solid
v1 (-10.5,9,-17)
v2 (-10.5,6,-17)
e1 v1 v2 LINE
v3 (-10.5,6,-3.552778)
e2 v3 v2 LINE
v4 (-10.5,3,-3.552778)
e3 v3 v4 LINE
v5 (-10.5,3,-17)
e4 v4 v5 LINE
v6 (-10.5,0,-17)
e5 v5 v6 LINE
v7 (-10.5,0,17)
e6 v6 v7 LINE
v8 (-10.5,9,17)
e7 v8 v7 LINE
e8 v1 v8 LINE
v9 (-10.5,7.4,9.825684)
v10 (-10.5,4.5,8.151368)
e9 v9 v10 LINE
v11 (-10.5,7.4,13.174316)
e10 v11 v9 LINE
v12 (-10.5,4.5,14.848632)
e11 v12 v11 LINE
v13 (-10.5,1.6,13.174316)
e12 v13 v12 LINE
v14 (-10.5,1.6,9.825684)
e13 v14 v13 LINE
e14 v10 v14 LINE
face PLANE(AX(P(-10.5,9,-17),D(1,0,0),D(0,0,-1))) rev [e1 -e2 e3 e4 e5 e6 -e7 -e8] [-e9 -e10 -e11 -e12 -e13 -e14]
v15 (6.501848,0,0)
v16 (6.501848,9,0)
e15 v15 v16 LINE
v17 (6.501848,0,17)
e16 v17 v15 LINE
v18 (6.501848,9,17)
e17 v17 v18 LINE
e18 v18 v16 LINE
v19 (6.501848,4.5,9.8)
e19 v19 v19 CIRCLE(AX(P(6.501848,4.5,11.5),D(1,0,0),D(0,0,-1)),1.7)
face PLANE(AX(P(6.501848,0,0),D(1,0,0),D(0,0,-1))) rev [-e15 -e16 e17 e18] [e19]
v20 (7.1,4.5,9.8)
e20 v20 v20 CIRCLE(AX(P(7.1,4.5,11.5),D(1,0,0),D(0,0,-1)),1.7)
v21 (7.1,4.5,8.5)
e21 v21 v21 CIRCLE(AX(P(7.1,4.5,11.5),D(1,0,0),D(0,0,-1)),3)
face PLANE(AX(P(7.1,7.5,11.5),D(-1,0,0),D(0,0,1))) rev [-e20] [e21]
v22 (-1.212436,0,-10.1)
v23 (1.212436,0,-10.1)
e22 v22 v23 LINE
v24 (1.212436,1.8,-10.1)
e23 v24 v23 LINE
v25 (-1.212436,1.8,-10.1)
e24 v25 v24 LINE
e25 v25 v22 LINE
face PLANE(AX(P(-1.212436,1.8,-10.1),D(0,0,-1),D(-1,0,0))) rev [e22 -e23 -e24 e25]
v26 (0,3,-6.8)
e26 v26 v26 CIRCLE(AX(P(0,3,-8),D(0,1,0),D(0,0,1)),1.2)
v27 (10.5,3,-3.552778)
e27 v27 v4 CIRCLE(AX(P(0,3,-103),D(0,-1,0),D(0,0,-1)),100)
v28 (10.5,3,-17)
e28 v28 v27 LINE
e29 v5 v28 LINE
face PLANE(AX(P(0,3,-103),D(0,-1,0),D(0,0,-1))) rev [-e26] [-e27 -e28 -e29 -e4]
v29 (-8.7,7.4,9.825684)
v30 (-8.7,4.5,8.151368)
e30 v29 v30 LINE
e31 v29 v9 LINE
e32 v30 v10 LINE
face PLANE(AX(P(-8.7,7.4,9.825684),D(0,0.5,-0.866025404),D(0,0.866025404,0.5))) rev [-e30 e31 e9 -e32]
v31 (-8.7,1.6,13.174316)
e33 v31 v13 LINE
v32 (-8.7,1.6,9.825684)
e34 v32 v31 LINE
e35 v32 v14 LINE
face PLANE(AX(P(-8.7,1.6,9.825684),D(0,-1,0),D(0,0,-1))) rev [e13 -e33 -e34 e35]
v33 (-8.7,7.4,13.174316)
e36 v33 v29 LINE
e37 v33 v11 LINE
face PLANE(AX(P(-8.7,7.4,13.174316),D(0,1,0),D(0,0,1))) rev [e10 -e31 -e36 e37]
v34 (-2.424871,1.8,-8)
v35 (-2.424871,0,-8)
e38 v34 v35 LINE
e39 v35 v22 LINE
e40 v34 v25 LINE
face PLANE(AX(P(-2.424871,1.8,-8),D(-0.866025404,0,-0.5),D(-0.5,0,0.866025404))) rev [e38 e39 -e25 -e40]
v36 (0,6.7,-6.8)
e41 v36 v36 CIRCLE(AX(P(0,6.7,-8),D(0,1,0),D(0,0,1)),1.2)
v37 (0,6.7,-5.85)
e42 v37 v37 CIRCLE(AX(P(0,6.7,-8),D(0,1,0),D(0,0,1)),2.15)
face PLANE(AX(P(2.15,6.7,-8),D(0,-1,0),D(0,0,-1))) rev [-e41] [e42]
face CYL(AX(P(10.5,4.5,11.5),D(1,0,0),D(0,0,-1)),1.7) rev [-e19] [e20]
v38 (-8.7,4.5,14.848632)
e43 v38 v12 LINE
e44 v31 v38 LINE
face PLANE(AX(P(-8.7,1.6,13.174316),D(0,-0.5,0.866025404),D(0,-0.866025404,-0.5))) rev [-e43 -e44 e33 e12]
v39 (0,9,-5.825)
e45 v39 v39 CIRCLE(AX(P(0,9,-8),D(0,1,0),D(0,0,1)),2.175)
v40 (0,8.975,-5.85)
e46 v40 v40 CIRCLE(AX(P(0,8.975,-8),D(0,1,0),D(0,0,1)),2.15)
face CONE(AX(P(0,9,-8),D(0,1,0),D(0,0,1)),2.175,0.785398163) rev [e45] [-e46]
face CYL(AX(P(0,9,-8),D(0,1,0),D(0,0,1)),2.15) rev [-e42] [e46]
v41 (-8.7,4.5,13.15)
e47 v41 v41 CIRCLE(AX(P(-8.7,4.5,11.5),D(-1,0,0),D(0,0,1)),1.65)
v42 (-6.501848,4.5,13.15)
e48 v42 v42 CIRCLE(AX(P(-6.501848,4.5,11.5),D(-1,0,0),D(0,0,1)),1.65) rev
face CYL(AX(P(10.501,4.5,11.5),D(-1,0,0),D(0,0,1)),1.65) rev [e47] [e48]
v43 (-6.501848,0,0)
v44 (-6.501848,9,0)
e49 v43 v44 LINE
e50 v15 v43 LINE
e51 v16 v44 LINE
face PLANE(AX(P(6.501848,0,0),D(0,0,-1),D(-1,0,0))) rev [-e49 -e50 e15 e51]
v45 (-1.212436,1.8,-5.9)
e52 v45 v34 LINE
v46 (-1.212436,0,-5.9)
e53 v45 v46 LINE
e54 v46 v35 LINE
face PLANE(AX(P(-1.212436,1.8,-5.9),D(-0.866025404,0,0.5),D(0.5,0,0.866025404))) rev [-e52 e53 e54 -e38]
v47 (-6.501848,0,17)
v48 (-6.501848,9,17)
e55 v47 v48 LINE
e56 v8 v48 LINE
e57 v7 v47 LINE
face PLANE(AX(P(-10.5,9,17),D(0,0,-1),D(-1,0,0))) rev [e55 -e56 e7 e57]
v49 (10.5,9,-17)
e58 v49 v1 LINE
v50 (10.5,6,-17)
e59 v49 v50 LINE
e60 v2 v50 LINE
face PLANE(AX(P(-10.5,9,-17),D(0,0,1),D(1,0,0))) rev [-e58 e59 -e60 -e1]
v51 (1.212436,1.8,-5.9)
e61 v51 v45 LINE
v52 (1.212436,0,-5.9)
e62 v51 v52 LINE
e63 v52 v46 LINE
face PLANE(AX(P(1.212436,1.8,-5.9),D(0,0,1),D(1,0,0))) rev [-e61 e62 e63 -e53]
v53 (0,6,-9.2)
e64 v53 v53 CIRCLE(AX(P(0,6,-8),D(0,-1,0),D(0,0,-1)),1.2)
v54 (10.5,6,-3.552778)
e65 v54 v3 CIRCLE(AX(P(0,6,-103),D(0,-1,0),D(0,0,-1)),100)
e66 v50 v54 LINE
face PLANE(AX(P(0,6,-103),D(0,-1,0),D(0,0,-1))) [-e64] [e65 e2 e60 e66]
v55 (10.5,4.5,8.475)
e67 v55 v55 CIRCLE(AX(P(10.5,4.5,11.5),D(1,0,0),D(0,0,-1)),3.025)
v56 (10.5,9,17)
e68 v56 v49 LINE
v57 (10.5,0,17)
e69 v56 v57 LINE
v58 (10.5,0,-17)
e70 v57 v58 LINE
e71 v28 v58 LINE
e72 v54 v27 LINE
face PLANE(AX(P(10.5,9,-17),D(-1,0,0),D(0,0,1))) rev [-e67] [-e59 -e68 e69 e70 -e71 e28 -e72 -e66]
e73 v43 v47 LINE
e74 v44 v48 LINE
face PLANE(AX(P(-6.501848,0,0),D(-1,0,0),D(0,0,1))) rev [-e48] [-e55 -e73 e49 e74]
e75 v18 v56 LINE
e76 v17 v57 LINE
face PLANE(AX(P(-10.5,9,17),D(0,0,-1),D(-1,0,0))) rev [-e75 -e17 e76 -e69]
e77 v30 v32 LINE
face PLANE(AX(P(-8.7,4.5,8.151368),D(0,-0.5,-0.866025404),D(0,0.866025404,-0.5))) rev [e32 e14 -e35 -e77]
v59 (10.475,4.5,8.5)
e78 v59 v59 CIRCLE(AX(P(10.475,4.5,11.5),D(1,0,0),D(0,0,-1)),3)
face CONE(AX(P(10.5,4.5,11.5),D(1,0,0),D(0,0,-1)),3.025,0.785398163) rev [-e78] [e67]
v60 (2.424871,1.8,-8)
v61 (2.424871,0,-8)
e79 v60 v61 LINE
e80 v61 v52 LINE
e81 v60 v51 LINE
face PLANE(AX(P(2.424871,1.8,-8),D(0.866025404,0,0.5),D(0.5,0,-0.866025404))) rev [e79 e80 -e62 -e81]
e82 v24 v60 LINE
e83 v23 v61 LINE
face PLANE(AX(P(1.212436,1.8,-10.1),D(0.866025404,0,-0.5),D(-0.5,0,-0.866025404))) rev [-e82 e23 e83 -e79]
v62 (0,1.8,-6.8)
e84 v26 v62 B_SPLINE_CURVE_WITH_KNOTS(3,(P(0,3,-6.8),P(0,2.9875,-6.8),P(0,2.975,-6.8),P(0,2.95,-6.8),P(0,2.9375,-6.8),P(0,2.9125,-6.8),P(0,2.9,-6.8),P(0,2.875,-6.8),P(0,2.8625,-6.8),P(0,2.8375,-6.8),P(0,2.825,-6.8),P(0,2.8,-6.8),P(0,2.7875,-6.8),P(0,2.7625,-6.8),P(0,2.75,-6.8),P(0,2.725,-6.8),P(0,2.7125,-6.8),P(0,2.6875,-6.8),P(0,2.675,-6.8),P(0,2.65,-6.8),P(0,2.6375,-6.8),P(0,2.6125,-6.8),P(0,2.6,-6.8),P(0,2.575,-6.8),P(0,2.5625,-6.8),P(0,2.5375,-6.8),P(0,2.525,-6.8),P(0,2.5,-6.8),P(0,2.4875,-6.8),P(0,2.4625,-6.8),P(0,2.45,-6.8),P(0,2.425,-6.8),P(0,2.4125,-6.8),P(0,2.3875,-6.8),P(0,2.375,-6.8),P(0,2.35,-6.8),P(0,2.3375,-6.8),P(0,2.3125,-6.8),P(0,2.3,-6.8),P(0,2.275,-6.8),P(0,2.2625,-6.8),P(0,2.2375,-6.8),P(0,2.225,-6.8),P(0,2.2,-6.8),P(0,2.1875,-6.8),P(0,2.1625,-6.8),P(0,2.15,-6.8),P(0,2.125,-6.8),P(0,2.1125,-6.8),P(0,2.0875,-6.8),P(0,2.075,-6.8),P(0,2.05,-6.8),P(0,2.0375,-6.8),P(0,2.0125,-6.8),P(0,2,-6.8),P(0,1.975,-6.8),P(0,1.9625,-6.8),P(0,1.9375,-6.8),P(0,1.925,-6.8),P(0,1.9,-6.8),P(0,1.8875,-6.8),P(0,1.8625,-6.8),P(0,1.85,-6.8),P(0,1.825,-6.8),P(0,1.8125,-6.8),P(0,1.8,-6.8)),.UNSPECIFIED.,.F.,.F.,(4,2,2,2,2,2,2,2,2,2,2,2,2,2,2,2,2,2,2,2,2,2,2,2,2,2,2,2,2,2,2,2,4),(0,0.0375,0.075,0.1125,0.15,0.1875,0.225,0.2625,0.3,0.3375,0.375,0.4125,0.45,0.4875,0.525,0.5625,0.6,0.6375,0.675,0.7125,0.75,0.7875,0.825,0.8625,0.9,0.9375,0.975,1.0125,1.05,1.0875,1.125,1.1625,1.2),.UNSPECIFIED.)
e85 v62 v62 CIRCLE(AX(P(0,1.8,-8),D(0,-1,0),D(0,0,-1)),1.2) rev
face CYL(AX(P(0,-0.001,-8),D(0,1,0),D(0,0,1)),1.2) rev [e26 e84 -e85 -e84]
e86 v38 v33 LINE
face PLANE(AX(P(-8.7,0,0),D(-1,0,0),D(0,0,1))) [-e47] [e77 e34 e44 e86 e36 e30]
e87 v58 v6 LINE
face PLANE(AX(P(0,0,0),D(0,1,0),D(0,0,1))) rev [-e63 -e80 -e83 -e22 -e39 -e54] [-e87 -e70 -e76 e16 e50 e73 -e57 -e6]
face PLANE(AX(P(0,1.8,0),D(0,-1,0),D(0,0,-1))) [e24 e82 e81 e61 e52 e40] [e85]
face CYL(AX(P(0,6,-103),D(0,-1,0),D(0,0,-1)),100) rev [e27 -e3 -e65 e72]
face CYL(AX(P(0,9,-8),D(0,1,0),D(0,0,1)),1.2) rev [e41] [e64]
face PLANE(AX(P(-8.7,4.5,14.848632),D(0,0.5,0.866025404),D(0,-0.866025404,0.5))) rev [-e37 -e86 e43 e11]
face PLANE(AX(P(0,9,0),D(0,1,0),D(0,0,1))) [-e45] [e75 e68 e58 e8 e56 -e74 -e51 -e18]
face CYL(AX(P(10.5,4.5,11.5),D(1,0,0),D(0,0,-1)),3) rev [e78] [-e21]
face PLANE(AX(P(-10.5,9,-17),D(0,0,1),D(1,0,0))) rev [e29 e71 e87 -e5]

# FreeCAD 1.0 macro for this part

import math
import FreeCAD as App
import Part
import Sketcher
Q = App.Units.Quantity


def add_polygon(sketch, points):
    """Adds a closed chain of lines whose ends are joined by coincident constraints."""
    first, n = sketch.GeometryCount, len(points)
    for a, b in zip(points, points[1:] + points[:1]):
        sketch.addGeometry(Part.LineSegment(App.Vector(*a, 0), App.Vector(*b, 0)), False)
    for i in range(n):
        sketch.addConstraint(Sketcher.Constraint("Coincident", first + i, 2, first + (i + 1) % n, 1))

doc = App.newDocument("Part")
body = doc.addObject("PartDesign::Body", "Body")

# Sketch on XZ plane
sketch1 = doc.addObject("Sketcher::SketchObject", "Sketch")
body.addObject(sketch1)
sketch1.AttachmentSupport = (doc.XZ_Plane, [""])
sketch1.MapMode = "FlatFace"
add_polygon(sketch1, [(-10, -17), (-10, 17), (10, 17), (10, -17)])  # lines 0-3
sketch1.addConstraint([
    Sketcher.Constraint("Vertical", 0),
    Sketcher.Constraint("Horizontal", 1),
    Sketcher.Constraint("Vertical", 2),
    Sketcher.Constraint("Horizontal", 3),
    Sketcher.Constraint("Symmetric", 0, 2, 2, 2, -1, 1),
    Sketcher.Constraint("DistanceX", 1, 1, 1, 2, 21.0),
    Sketcher.Constraint("DistanceY", 0, 1, 0, 2, 34.0),
])
pad1 = doc.addObject("PartDesign::Pad", "Pad")
body.addObject(pad1)
pad1.Profile = sketch1
pad1.Length = 9
pad1.Reversed = True

# Sketch on XZ plane
sketch2 = doc.addObject("Sketcher::SketchObject", "Sketch001")
body.addObject(sketch2)
sketch2.AttachmentSupport = (doc.XZ_Plane, [""])
sketch2.MapMode = "FlatFace"
sketch2.AttachmentOffset = App.Placement(App.Vector(0, 0, -9), App.Rotation())
add_polygon(sketch2, [(-7, 0), (-7, 17), (7, 17), (7, 0)])  # lines 0-3
sketch2.addConstraint([
    Sketcher.Constraint("Vertical", 0),
    Sketcher.Constraint("Horizontal", 1),
    Sketcher.Constraint("Vertical", 2),
    Sketcher.Constraint("Horizontal", 3),
    Sketcher.Constraint("Symmetric", 2, 2, 3, 2, -1, 1),
    Sketcher.Constraint("DistanceY", 0, 1, 0, 2, 17.0),
    Sketcher.Constraint("DistanceX", 1, 1, 1, 2, 13.003696),
])
pocket1 = doc.addObject("PartDesign::Pocket", "Pocket")
body.addObject(pocket1)
pocket1.Profile = sketch2
pocket1.Type = "ThroughAll"
pocket1.Reversed = True

# Sketch on XZ plane
sketch3 = doc.addObject("Sketcher::SketchObject", "Sketch002")
body.addObject(sketch3)
sketch3.AttachmentSupport = (doc.XZ_Plane, [""])
sketch3.MapMode = "FlatFace"
sketch3.AttachmentOffset = App.Placement(App.Vector(0, 0, -4.5), App.Rotation())
add_polygon(sketch3, [(6.502, 11.5), (10.5, 11.5), (10.5, 8.475), (10.475, 8.5), (7.1, 8.5), (7.1, 9.8), (6.502, 9.8)])  # lines 0-6
sketch3.addGeometry(Part.LineSegment(App.Vector(10.5, 11.5, 0), App.Vector(6.502, 11.5, 0)), True)  # axis
sketch3.addConstraint([
    Sketcher.Constraint("Horizontal", 0),
    Sketcher.Constraint("Vertical", 1),
    Sketcher.Constraint("Horizontal", 3),
    Sketcher.Constraint("Vertical", 4),
    Sketcher.Constraint("Horizontal", 5),
    Sketcher.Constraint("Vertical", 6),
    Sketcher.Constraint("Horizontal", 7),
    Sketcher.Constraint("Coincident", 7, 1, 0, 2),
    Sketcher.Constraint("Vertical", 5, 2, 7, 2),
    Sketcher.Constraint("Angle", 2, Q("135 deg")),
    Sketcher.Constraint("DistanceY", 4, 1, 4, 2, 1.3),
    Sketcher.Constraint("DistanceY", 6, 1, 6, 2, 1.7),
    Sketcher.Constraint("DistanceX", -1, 1, 0, 2, 10.5),
    Sketcher.Constraint("DistanceY", -1, 1, 0, 2, 11.5),
    Sketcher.Constraint("DistanceX", -1, 1, 3, 2, 7.1),
    Sketcher.Constraint("DistanceX", 3, 2, 3, 1, 3.375),
    Sketcher.Constraint("DistanceX", 0, 1, 0, 2, 3.998152),
])
groove = doc.addObject("PartDesign::Groove", "Groove")
body.addObject(groove)
groove.Profile = sketch3
groove.ReferenceAxis = (sketch3, ["Axis0"])
groove.Angle = 360

# Sketch on YZ plane
sketch4 = doc.addObject("Sketcher::SketchObject", "Sketch003")
body.addObject(sketch4)
sketch4.AttachmentSupport = (doc.YZ_Plane, [""])
sketch4.MapMode = "FlatFace"
sketch4.AttachmentOffset = App.Placement(App.Vector(0, 0, -10.5), App.Rotation())
add_polygon(sketch4, [(1.6, 13.2), (4.5, 14.8), (7.4, 13.2), (7.4, 9.8), (4.5, 8.2), (1.6, 9.8)])  # lines 0-5
sketch4.addConstraint([
    Sketcher.Constraint("Vertical", 2),
    Sketcher.Constraint("Vertical", 5),
    Sketcher.Constraint("Parallel", 0, 3),
    Sketcher.Constraint("Parallel", 1, 4),
    Sketcher.Constraint("Horizontal", 2, 2, 4, 2),
    Sketcher.Constraint("Horizontal", 1, 2, 5, 2),
    Sketcher.Constraint("Vertical", 0, 2, 3, 2),
    Sketcher.Constraint("Angle", 0, Q("30 deg")),
    Sketcher.Constraint("DistanceX", -1, 1, 0, 2, 4.5),
    Sketcher.Constraint("DistanceX", -1, 1, 1, 2, 7.4),
    Sketcher.Constraint("DistanceY", 2, 2, 2, 1, 3.348632),
    Sketcher.Constraint("DistanceY", -1, 1, 0, 2, 14.848632),
])
pocket2 = doc.addObject("PartDesign::Pocket", "Pocket001")
body.addObject(pocket2)
pocket2.Profile = sketch4
pocket2.Length = 1.8
pocket2.Reversed = True

# Sketch on YZ plane
sketch5 = doc.addObject("Sketcher::SketchObject", "Sketch004")
body.addObject(sketch5)
sketch5.AttachmentSupport = (doc.YZ_Plane, [""])
sketch5.MapMode = "FlatFace"
sketch5.AttachmentOffset = App.Placement(App.Vector(0, 0, -8.7), App.Rotation())
sketch5.addGeometry(Part.Circle(App.Vector(4.5, 11.5, 0), App.Vector(0, 0, 1), 1.6), False)
sketch5.addConstraint([
    Sketcher.Constraint("Diameter", 0, 3.3),
    Sketcher.Constraint("DistanceX", -1, 1, 0, 3, 4.5),
    Sketcher.Constraint("DistanceY", -1, 1, 0, 3, 11.5),
])
pocket3 = doc.addObject("PartDesign::Pocket", "Pocket002")
body.addObject(pocket3)
pocket3.Profile = sketch5
pocket3.Type = "UpToFirst"
pocket3.Reversed = True

# Sketch on XZ plane
sketch6 = doc.addObject("Sketcher::SketchObject", "Sketch005")
body.addObject(sketch6)
sketch6.AttachmentSupport = (doc.XZ_Plane, [""])
sketch6.MapMode = "FlatFace"
sketch6.AttachmentOffset = App.Placement(App.Vector(0, 0, -3), App.Rotation())
sketch6.addGeometry([
    Part.LineSegment(App.Vector(-10, -17, 0), App.Vector(10, -17, 0)),
    Part.LineSegment(App.Vector(10, -17, 0), App.Vector(10, -4, 0)),
    Part.ArcOfCircle(Part.Circle(App.Vector(0, -103, 0), App.Vector(0, 0, 1), 100), math.radians(83.97), math.radians(96.03)),
    Part.LineSegment(App.Vector(-10, -4, 0), App.Vector(-10, -17, 0)),
], False)
sketch6.addConstraint([
    Sketcher.Constraint("Coincident", 0, 2, 1, 1),
    Sketcher.Constraint("Coincident", 1, 2, 2, 1),
    Sketcher.Constraint("Coincident", 2, 2, 3, 1),
    Sketcher.Constraint("Coincident", 3, 2, 0, 1),
    Sketcher.Constraint("Horizontal", 0),
    Sketcher.Constraint("Vertical", 1),
    Sketcher.Constraint("Vertical", 3),
    Sketcher.Constraint("Symmetric", 1, 2, 2, 2, -2),
    Sketcher.Constraint("Radius", 2, 100.0),
    Sketcher.Constraint("DistanceX", 0, 1, 0, 2, 21.0),
    Sketcher.Constraint("DistanceY", 2, 3, -1, 1, 103.0),
    Sketcher.Constraint("DistanceY", 0, 2, -1, 1, 17.0),
])
pocket4 = doc.addObject("PartDesign::Pocket", "Pocket003")
body.addObject(pocket4)
pocket4.Profile = sketch6
pocket4.Length = 3

# Sketch on YZ plane
sketch7 = doc.addObject("Sketcher::SketchObject", "Sketch006")
body.addObject(sketch7)
sketch7.AttachmentSupport = (doc.YZ_Plane, [""])
sketch7.MapMode = "FlatFace"
add_polygon(sketch7, [(6, -8), (9, -8), (9, -5.825), (8.975, -5.85), (6.7, -5.85), (6.7, -6.8), (6, -6.8)])  # lines 0-6
sketch7.addGeometry(Part.LineSegment(App.Vector(9, -8, 0), App.Vector(6, -8, 0)), True)  # axis
sketch7.addConstraint([
    Sketcher.Constraint("Horizontal", 0),
    Sketcher.Constraint("Vertical", 1),
    Sketcher.Constraint("Horizontal", 3),
    Sketcher.Constraint("Vertical", 4),
    Sketcher.Constraint("Horizontal", 5),
    Sketcher.Constraint("Vertical", 6),
    Sketcher.Constraint("Horizontal", 7),
    Sketcher.Constraint("Coincident", 7, 1, 0, 2),
    Sketcher.Constraint("Vertical", 5, 2, 7, 2),
    Sketcher.Constraint("DistanceX", 0, 1, 0, 2, 3.0),
    Sketcher.Constraint("Angle", 2, Q("-135 deg")),
    Sketcher.Constraint("DistanceX", 5, 2, 5, 1, 0.7),
    Sketcher.Constraint("DistanceY", 6, 2, 6, 1, 1.2),
    Sketcher.Constraint("DistanceX", -1, 1, 0, 2, 9.0),
    Sketcher.Constraint("DistanceY", 0, 2, -1, 1, 8.0),
    Sketcher.Constraint("DistanceY", 4, 2, 4, 1, 0.95),
    Sketcher.Constraint("DistanceX", 3, 2, 3, 1, 2.275),
])
groove2 = doc.addObject("PartDesign::Groove", "Groove001")
body.addObject(groove2)
groove2.Profile = sketch7
groove2.ReferenceAxis = (sketch7, ["Axis0"])
groove2.Angle = 360

# Sketch on XZ plane
sketch8 = doc.addObject("Sketcher::SketchObject", "Sketch007")
body.addObject(sketch8)
sketch8.AttachmentSupport = (doc.XZ_Plane, [""])
sketch8.MapMode = "FlatFace"
sketch8.AttachmentOffset = App.Placement(App.Vector(0, 0, -3), App.Rotation())
sketch8.addGeometry(Part.Circle(App.Vector(0, -8, 0), App.Vector(0, 0, 1), 1.2), False)
sketch8.addConstraint([
    Sketcher.Constraint("PointOnObject", 0, 3, -2),
    Sketcher.Constraint("Diameter", 0, 2.4),
    Sketcher.Constraint("DistanceY", 0, 3, -1, 1, 8.0),
])
pocket5 = doc.addObject("PartDesign::Pocket", "Pocket004")
body.addObject(pocket5)
pocket5.Profile = sketch8
pocket5.Type = "UpToFirst"
pocket5.Reversed = True

# Sketch on XZ plane
sketch9 = doc.addObject("Sketcher::SketchObject", "Sketch008")
body.addObject(sketch9)
sketch9.AttachmentSupport = (doc.XZ_Plane, [""])
sketch9.MapMode = "FlatFace"
add_polygon(sketch9, [(1.2, -10.1), (2.4, -8), (1.2, -5.9), (-1.2, -5.9), (-2.4, -8), (-1.2, -10.1)])  # lines 0-5
sketch9.addConstraint([
    Sketcher.Constraint("Horizontal", 2),
    Sketcher.Constraint("Horizontal", 5),
    Sketcher.Constraint("Symmetric", 0, 2, 3, 2, -2),
    Sketcher.Constraint("Parallel", 0, 3),
    Sketcher.Constraint("Parallel", 1, 4),
    Sketcher.Constraint("Vertical", 2, 2, 4, 2),
    Sketcher.Constraint("Vertical", 1, 2, 5, 2),
    Sketcher.Constraint("Angle", 0, Q("60 deg")),
    Sketcher.Constraint("DistanceY", 0, 2, -1, 1, 8.0),
    Sketcher.Constraint("DistanceY", 1, 2, -1, 1, 5.9),
    Sketcher.Constraint("DistanceX", 2, 2, 2, 1, 2.424871),
])
pocket6 = doc.addObject("PartDesign::Pocket", "Pocket005")
body.addObject(pocket6)
pocket6.Profile = sketch9
pocket6.Length = 1.8

doc.recompute()
